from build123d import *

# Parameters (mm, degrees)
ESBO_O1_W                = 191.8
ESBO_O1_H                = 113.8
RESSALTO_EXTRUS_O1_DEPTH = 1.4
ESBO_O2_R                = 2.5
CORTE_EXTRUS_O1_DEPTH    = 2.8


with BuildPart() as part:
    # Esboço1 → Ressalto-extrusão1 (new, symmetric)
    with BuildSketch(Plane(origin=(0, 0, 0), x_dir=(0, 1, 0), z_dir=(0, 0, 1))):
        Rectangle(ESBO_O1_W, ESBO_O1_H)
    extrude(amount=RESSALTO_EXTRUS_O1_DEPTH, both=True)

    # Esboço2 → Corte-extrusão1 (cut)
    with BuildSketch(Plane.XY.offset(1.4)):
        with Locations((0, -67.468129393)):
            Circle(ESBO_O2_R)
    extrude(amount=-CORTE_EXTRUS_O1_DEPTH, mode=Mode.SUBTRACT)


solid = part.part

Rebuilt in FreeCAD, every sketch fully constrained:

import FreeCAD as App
import Part
import Sketcher

V = App.Vector

doc = App.newDocument("Part")
body = doc.addObject("PartDesign::Body", "Body")

sketch1 = body.newObject("Sketcher::SketchObject", "Sketch")
sketch1.AttachmentSupport = (doc.getObject("XY_Plane"), [""])
sketch1.MapMode = "FlatFace"
sketch1.addGeometry([
    Part.LineSegment(V(-57, -96, 0), V(57, -96, 0)),
    Part.LineSegment(V(57, -96, 0), V(57, 96, 0)),
    Part.LineSegment(V(57, 96, 0), V(-57, 96, 0)),
    Part.LineSegment(V(-57, 96, 0), V(-57, -96, 0)),
], False)
sketch1.addConstraint([
    Sketcher.Constraint("Coincident", 0, 2, 1, 1),
    Sketcher.Constraint("Coincident", 1, 2, 2, 1),
    Sketcher.Constraint("Coincident", 2, 2, 3, 1),
    Sketcher.Constraint("Coincident", 3, 2, 0, 1),
    Sketcher.Constraint("Horizontal", 0),
    Sketcher.Constraint("Vertical", 1),
    Sketcher.Constraint("Horizontal", 2),
    Sketcher.Constraint("Vertical", 3),
    Sketcher.Constraint("Symmetric", 0, 2, 2, 2, -1, 1),
    Sketcher.Constraint("DistanceX", 0, 1, 0, 2, 113.8),
    Sketcher.Constraint("DistanceY", 1, 1, 1, 2, 191.8),
])
pad1 = body.newObject("PartDesign::Pad", "Pad")
pad1.Profile = sketch1
pad1.Length = 2.8
pad1.Midplane = True

sketch2 = body.newObject("Sketcher::SketchObject", "Sketch001")
sketch2.AttachmentSupport = (doc.getObject("XY_Plane"), [""])
sketch2.MapMode = "FlatFace"
sketch2.AttachmentOffset = App.Placement(V(0, 0, 1.4), App.Rotation())
sketch2.addGeometry(Part.Circle(V(0, -67.5, 0), V(0, 0, 1), 2.5), False)
sketch2.addConstraint([
    Sketcher.Constraint("PointOnObject", 0, 3, -2),
    Sketcher.Constraint("Diameter", 0, 5.0),
    Sketcher.Constraint("DistanceY", 0, 3, -1, 1, 67.468129),
])
pocket1 = body.newObject("PartDesign::Pocket", "Pocket")
pocket1.Profile = sketch2
pocket1.Length = 2.8

doc.recompute()
